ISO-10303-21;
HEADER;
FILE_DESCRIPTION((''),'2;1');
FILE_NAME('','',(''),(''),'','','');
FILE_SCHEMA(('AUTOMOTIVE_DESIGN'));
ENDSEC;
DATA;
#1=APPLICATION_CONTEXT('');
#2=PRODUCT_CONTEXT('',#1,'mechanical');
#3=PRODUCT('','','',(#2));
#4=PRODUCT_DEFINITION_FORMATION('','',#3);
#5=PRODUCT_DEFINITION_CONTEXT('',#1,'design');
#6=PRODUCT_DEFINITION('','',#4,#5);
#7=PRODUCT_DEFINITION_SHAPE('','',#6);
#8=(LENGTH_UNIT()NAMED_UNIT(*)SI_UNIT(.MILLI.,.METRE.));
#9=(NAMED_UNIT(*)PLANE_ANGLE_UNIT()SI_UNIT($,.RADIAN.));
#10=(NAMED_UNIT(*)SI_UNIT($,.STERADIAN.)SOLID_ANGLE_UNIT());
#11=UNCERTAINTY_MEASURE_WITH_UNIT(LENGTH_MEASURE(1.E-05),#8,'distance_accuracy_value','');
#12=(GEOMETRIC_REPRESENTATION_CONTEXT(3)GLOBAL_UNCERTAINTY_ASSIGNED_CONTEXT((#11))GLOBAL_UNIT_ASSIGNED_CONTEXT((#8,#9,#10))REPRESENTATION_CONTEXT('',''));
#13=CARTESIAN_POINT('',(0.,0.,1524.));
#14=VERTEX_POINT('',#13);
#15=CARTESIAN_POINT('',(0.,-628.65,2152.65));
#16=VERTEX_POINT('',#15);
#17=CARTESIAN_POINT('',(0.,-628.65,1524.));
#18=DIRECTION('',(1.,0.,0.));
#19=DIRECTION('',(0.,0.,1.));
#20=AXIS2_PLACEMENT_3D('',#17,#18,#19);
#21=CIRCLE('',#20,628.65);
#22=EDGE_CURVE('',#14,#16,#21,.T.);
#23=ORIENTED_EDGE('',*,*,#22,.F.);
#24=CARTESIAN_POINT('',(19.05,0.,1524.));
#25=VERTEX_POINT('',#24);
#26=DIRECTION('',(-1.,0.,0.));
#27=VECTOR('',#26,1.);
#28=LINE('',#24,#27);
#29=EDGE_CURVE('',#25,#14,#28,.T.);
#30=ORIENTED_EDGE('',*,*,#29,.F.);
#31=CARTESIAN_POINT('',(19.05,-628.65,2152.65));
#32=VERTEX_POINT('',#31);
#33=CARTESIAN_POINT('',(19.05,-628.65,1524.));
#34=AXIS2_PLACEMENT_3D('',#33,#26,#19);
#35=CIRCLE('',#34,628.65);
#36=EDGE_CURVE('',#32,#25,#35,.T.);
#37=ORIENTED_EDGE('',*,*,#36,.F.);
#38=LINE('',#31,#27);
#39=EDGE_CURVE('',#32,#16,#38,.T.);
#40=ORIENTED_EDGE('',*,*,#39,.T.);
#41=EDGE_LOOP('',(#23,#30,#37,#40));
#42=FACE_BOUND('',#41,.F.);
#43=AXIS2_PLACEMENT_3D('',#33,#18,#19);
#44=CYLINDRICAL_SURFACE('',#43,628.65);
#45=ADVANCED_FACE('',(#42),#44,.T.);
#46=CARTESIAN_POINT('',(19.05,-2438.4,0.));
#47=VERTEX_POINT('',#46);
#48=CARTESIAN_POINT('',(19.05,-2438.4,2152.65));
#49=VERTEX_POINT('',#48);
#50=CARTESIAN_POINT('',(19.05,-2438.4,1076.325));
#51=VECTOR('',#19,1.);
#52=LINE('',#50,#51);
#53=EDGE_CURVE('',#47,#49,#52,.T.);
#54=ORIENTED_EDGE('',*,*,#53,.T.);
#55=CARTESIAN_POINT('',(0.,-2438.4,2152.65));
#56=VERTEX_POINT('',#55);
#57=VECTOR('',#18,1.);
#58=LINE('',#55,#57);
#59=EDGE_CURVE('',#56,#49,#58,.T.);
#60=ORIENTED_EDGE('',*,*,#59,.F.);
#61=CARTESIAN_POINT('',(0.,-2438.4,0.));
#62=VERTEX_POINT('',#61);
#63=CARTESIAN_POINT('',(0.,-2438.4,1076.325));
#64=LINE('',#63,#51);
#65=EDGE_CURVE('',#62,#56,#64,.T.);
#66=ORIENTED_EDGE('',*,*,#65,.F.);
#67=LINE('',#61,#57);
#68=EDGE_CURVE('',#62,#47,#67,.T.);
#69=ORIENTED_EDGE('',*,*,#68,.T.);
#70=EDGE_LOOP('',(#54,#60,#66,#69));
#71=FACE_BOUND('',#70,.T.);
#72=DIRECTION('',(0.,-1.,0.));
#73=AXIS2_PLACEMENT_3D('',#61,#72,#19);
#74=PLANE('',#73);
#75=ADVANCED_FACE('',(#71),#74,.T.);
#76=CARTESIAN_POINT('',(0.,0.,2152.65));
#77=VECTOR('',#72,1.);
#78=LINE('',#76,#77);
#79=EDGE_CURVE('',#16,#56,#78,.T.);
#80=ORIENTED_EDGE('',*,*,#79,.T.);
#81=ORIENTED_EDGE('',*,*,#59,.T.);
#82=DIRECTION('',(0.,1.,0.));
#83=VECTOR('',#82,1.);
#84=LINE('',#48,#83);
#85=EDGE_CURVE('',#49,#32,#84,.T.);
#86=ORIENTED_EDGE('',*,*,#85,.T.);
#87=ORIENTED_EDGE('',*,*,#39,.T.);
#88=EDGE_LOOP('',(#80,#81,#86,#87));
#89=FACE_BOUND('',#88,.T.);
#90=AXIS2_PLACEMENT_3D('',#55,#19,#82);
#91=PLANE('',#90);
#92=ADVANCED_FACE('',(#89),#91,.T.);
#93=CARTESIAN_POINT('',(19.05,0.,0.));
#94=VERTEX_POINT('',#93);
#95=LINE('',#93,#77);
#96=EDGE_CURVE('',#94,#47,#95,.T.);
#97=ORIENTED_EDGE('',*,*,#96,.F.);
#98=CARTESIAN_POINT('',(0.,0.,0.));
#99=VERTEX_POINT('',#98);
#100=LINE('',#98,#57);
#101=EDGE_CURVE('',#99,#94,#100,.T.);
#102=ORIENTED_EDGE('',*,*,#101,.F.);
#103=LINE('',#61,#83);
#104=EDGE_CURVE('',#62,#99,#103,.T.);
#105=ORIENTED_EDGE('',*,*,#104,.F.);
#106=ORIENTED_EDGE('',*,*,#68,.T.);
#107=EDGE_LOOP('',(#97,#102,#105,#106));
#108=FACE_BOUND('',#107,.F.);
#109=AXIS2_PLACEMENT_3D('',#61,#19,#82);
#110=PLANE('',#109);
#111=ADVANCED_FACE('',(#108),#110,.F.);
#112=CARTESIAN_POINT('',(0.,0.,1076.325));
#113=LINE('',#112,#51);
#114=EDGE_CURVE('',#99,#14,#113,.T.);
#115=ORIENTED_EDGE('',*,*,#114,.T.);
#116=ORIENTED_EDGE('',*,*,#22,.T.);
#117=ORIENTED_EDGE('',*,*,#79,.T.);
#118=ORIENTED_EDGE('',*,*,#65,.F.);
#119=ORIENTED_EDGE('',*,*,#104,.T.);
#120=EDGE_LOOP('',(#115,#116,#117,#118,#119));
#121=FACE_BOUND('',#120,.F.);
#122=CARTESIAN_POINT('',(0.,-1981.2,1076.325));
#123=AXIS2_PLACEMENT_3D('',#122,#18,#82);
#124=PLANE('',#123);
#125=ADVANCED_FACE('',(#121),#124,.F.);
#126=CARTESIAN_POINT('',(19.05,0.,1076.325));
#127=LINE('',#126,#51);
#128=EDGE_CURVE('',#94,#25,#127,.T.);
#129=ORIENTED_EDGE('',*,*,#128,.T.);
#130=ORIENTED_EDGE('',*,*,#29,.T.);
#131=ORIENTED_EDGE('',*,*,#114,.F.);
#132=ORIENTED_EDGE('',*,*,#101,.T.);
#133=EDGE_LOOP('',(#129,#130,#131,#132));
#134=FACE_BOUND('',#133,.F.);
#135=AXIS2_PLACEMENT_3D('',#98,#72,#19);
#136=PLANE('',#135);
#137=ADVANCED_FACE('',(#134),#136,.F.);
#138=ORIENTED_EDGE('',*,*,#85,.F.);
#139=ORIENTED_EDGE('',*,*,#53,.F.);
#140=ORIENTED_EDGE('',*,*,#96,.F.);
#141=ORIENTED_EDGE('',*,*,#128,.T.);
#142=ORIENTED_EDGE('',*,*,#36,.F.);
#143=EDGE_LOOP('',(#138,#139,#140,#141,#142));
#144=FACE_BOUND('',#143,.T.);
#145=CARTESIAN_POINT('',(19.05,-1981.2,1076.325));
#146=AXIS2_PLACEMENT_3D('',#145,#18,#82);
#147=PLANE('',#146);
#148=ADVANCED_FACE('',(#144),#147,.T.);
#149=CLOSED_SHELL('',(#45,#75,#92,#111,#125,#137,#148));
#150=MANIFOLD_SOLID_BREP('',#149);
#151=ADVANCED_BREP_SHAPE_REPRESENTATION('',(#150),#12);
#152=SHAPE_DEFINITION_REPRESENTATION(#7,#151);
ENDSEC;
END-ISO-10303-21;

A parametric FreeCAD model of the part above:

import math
import FreeCAD as App
import Part
import Sketcher
Q = App.Units.Quantity


def add_polygon(sketch, points):
    """Adds a closed chain of lines whose ends are joined by coincident constraints."""
    first, n = sketch.GeometryCount, len(points)
    for a, b in zip(points, points[1:] + points[:1]):
        sketch.addGeometry(Part.LineSegment(App.Vector(*a, 0), App.Vector(*b, 0)), False)
    for i in range(n):
        sketch.addConstraint(Sketcher.Constraint("Coincident", first + i, 2, first + (i + 1) % n, 1))

doc = App.newDocument("Part")
body = doc.addObject("PartDesign::Body", "Body")

# Sketch on YZ plane
sketch1 = body.newObject("Sketcher::SketchObject", "Sketch")
sketch1.AttachmentSupport = (doc.getObject("YZ_Plane"), [""])
sketch1.MapMode = "FlatFace"
add_polygon(sketch1, [(-1524, 2153), (-1524, 0), (0, 0), (0, 2153)])  # lines 0-3
sketch1.addConstraint([
    Sketcher.Constraint("Vertical", 0),
    Sketcher.Constraint("Horizontal", 1),
    Sketcher.Constraint("Vertical", 2),
    Sketcher.Constraint("Horizontal", 3),
    Sketcher.Constraint("Coincident", 1, 2, -1, 1),
    Sketcher.Constraint("DistanceX", 1, 1, 1, 2, Q("60 in")),
    Sketcher.Constraint("DistanceY", 0, 2, 0, 1, Q("84.75 in")),
])
pad1 = body.newObject("PartDesign::Pad", "Pad")
pad1.Profile = sketch1
pad1.Length = Q("0.75 in")

# Sketch on YZ plane
sketch2 = body.newObject("Sketcher::SketchObject", "Sketch001")
sketch2.AttachmentSupport = (doc.getObject("YZ_Plane"), [""])
sketch2.MapMode = "FlatFace"
add_polygon(sketch2, [(-2438, 2153), (-2438, 0), (-1524, 0), (-1524, 2153)])  # lines 0-3
sketch2.addConstraint([
    Sketcher.Constraint("Vertical", 0),
    Sketcher.Constraint("Horizontal", 1),
    Sketcher.Constraint("Vertical", 2),
    Sketcher.Constraint("Horizontal", 3),
    Sketcher.Constraint("PointOnObject", 0, 2, -1),
    Sketcher.Constraint("DistanceX", 1, 1, 1, 2, Q("36 in")),
    Sketcher.Constraint("DistanceX", 0, 2, -1, 1, Q("96 in")),
    Sketcher.Constraint("DistanceY", 0, 2, 0, 1, Q("84.75 in")),
])
pad2 = body.newObject("PartDesign::Pad", "Pad001")
pad2.Profile = sketch2
pad2.Length = Q("0.75 in")

# Sketch on YZ plane
sketch3 = body.newObject("Sketcher::SketchObject", "Sketch002")
sketch3.AttachmentSupport = (doc.getObject("YZ_Plane"), [""])
sketch3.MapMode = "FlatFace"
sketch3.AttachmentOffset = App.Placement(App.Vector(0, 0, 0.75 * 25.4), App.Rotation())
sketch3.addGeometry([
    Part.ArcOfCircle(Part.Circle(App.Vector(-629, 1524, 0), App.Vector(0, 0, 1), 629), math.radians(0), math.radians(90)),
    Part.LineSegment(App.Vector(0, 1524, 0), App.Vector(0, 2153, 0)),
    Part.LineSegment(App.Vector(0, 2153, 0), App.Vector(-629, 2153, 0)),
], False)
sketch3.addConstraint([
    Sketcher.Constraint("Tangent", 0, 1, 1, 1),
    Sketcher.Constraint("Coincident", 1, 2, 2, 1),
    Sketcher.Constraint("Tangent", 2, 2, 0, 2),
    Sketcher.Constraint("Vertical", 1),
    Sketcher.Constraint("Horizontal", 2),
    Sketcher.Constraint("PointOnObject", 0, 1, -2),
    Sketcher.Constraint("Radius", 0, Q("24.75 in")),
    Sketcher.Constraint("DistanceY", -1, 1, 0, 3, Q("60 in")),
])
pocket1 = body.newObject("PartDesign::Pocket", "Pocket")
pocket1.Profile = sketch3
pocket1.Length = Q("1 in")

doc.recompute()
